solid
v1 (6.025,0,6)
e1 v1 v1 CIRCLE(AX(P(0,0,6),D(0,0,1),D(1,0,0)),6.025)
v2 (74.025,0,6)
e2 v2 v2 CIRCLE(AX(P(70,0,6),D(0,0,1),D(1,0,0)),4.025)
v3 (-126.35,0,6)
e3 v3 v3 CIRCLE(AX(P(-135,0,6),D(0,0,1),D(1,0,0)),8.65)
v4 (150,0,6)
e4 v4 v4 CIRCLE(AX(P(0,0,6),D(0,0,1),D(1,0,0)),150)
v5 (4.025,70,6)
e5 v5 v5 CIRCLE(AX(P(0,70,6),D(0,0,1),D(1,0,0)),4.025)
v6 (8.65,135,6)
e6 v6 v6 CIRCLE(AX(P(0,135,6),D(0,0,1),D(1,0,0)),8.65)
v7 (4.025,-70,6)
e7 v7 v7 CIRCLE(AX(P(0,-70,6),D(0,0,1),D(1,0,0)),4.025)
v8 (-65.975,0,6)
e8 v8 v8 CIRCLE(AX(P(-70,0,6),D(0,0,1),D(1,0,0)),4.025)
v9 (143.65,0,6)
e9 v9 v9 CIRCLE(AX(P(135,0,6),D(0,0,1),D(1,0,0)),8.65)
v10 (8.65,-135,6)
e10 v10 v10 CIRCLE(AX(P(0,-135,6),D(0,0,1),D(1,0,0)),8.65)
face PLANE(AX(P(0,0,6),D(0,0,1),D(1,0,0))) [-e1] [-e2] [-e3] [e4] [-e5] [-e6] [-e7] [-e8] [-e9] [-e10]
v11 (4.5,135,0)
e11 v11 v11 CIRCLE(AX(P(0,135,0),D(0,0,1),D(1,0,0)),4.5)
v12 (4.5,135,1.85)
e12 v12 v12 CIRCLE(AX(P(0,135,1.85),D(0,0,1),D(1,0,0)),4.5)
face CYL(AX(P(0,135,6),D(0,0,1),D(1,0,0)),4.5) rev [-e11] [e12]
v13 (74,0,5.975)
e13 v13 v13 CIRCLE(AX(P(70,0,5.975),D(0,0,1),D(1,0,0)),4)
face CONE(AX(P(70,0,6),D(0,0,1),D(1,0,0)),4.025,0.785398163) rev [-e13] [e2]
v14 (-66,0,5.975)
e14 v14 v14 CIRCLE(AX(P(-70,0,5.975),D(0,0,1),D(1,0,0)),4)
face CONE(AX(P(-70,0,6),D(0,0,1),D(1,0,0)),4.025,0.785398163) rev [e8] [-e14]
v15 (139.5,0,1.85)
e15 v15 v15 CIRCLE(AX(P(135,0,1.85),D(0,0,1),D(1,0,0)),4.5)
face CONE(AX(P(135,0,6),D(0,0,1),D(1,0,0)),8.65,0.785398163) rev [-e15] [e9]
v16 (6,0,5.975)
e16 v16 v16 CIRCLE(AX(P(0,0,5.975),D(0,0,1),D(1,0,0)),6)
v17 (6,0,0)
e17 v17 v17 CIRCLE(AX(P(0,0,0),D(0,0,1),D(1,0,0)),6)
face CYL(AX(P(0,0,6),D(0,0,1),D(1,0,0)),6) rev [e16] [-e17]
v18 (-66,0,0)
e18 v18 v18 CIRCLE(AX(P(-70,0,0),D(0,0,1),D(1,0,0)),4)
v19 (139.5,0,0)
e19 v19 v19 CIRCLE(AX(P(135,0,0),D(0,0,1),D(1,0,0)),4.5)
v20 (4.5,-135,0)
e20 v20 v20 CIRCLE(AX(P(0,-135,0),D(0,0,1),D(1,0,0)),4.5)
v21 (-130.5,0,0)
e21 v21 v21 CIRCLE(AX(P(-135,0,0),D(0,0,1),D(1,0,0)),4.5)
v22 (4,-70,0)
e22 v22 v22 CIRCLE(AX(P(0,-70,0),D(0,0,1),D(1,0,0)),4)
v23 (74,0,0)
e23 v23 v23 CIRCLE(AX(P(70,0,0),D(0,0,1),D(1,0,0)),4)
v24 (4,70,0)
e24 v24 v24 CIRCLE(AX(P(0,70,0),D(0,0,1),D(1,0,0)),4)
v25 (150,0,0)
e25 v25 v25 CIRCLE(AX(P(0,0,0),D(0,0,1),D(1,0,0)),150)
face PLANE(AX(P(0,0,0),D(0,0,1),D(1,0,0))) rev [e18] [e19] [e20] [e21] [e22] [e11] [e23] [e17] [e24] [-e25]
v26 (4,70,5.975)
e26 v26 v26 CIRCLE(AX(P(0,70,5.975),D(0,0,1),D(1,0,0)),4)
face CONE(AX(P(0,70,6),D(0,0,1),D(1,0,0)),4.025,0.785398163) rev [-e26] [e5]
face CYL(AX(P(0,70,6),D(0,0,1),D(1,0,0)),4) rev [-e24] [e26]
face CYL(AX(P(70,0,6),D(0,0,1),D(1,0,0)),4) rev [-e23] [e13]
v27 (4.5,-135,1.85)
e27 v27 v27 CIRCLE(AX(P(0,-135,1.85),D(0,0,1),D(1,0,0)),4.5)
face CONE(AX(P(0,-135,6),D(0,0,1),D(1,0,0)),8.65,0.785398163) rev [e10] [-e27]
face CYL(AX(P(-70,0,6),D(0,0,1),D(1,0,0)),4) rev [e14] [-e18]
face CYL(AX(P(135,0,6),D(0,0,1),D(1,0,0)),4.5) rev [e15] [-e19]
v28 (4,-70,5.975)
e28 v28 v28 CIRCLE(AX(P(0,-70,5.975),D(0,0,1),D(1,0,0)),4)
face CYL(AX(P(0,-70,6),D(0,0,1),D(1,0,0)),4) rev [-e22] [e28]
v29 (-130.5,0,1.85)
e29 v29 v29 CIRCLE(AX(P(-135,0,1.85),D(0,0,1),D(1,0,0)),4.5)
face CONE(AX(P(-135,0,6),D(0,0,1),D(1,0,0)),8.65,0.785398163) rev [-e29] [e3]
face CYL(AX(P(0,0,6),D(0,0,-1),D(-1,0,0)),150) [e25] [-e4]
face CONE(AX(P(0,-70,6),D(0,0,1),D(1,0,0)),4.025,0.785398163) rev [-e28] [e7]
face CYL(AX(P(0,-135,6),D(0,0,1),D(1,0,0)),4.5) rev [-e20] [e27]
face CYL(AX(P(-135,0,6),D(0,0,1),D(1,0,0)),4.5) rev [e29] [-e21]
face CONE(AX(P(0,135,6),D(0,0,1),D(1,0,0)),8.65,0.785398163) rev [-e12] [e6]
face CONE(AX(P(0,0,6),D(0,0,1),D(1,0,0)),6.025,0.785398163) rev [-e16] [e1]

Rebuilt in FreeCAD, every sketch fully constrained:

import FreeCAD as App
import Part
import Sketcher
Q = App.Units.Quantity


def add_polygon(sketch, points):
    """Adds a closed chain of lines whose ends are joined by coincident constraints."""
    first, n = sketch.GeometryCount, len(points)
    for a, b in zip(points, points[1:] + points[:1]):
        sketch.addGeometry(Part.LineSegment(App.Vector(*a, 0), App.Vector(*b, 0)), False)
    for i in range(n):
        sketch.addConstraint(Sketcher.Constraint("Coincident", first + i, 2, first + (i + 1) % n, 1))

doc = App.newDocument("Part")
body = doc.addObject("PartDesign::Body", "Body")

# Sketch on XY plane
sketch1 = body.newObject("Sketcher::SketchObject", "Sketch")
sketch1.AttachmentSupport = (doc.getObject("XY_Plane"), [""])
sketch1.MapMode = "FlatFace"
sketch1.addGeometry(Part.Circle(App.Vector(0, 0, 0), App.Vector(0, 0, 1), 150), False)
sketch1.addConstraint(Sketcher.Constraint("Coincident", 0, 3, -1, 1))
sketch1.addConstraint(Sketcher.Constraint("Diameter", 0, Q("300 mm")))
pad1 = body.newObject("PartDesign::Pad", "Pad")
pad1.Profile = sketch1
pad1.Length = 6

# Sketch on XY plane
sketch2 = body.newObject("Sketcher::SketchObject", "Sketch001")
sketch2.AttachmentSupport = (doc.getObject("XY_Plane"), [""])
sketch2.MapMode = "FlatFace"
sketch2.AttachmentOffset = App.Placement(App.Vector(0, 0, 6), App.Rotation())
sketch2.addGeometry(Part.Circle(App.Vector(0, 70, 0), App.Vector(0, 0, 1), 4), False)
sketch2.addGeometry(Part.Circle(App.Vector(0, -70, 0), App.Vector(0, 0, 1), 4), False)
sketch2.addGeometry(Part.Circle(App.Vector(-70, 0, 0), App.Vector(0, 0, 1), 4), False)
sketch2.addGeometry(Part.Circle(App.Vector(70, 0, 0), App.Vector(0, 0, 1), 4), False)
sketch2.addConstraint(Sketcher.Constraint("Equal", 0, 1))
sketch2.addConstraint(Sketcher.Constraint("Equal", 1, 2))
sketch2.addConstraint(Sketcher.Constraint("Equal", 2, 3))
sketch2.addConstraint(Sketcher.Constraint("Symmetric", 0, 3, 1, 3, -1, 1))
sketch2.addConstraint(Sketcher.Constraint("Symmetric", 2, 3, 3, 3, -1, 1))
sketch2.addConstraint(Sketcher.Constraint("PointOnObject", 0, 3, -2))
sketch2.addConstraint(Sketcher.Constraint("PointOnObject", 2, 3, -1))
sketch2.addConstraint(Sketcher.Constraint("Diameter", 0, Q("8 mm")))
sketch2.addConstraint(Sketcher.Constraint("DistanceY", -1, 1, 0, 3, Q("70 mm")))
sketch2.addConstraint(Sketcher.Constraint("DistanceX", 2, 3, -1, 1, Q("70 mm")))
doc.recompute()
hole = body.newObject("PartDesign::Hole", "Hole")
hole.Profile = sketch2
hole.ThreadType = "None"
hole.Diameter = 8
hole.DepthType = "ThroughAll"
hole.HoleCutType = "Countersink"
hole.HoleCutDiameter = 8.05
hole.HoleCutCountersinkAngle = 90

# Sketch on YZ plane
sketch3 = body.newObject("Sketcher::SketchObject", "Sketch002")
sketch3.AttachmentSupport = (doc.getObject("YZ_Plane"), [""])
sketch3.MapMode = "FlatFace"
add_polygon(sketch3, [(0, 0), (0, 6), (-6.025, 6), (-6, 5.975), (-6, 0)])  # lines 0-4
sketch3.addConstraint(Sketcher.Constraint("Vertical", 0))
sketch3.addConstraint(Sketcher.Constraint("Horizontal", 1))
sketch3.addConstraint(Sketcher.Constraint("Vertical", 3))
sketch3.addConstraint(Sketcher.Constraint("Horizontal", 4))
sketch3.addConstraint(Sketcher.Constraint("Coincident", 4, 2, -1, 1))
sketch3.addConstraint(Sketcher.Constraint("Equal", 4, 0))
sketch3.addConstraint(Sketcher.Constraint("DistanceX", 4, 1, 4, 2, Q("6 mm")))
sketch3.addConstraint(Sketcher.Constraint("Angle", 2, Q("-45 deg")))
sketch3.addConstraint(Sketcher.Constraint("DistanceX", 1, 2, 1, 1, Q("6.025 mm")))
groove = body.newObject("PartDesign::Groove", "Groove")
groove.Profile = sketch3
groove.ReferenceAxis = (sketch3, ["V_Axis"])
groove.Angle = 360

# Sketch on YZ plane
sketch4 = body.newObject("Sketcher::SketchObject", "Sketch003")
sketch4.AttachmentSupport = (doc.getObject("YZ_Plane"), [""])
sketch4.MapMode = "FlatFace"
add_polygon(sketch4, [(135, 0), (135, 6), (126.35, 6), (130.5, 1.85), (130.5, 0)])  # lines 0-4
sketch4.addGeometry(Part.LineSegment(App.Vector(135, 6, 0), App.Vector(135, 0, 0)), True)  # axis
sketch4.addConstraint(Sketcher.Constraint("Vertical", 0))
sketch4.addConstraint(Sketcher.Constraint("Horizontal", 1))
sketch4.addConstraint(Sketcher.Constraint("Vertical", 3))
sketch4.addConstraint(Sketcher.Constraint("Horizontal", 4))
sketch4.addConstraint(Sketcher.Constraint("Vertical", 5))
sketch4.addConstraint(Sketcher.Constraint("Coincident", 5, 1, 0, 2))
sketch4.addConstraint(Sketcher.Constraint("PointOnObject", 3, 2, -1))
sketch4.addConstraint(Sketcher.Constraint("PointOnObject", 5, 2, -1))
sketch4.addConstraint(Sketcher.Constraint("DistanceY", 0, 1, 0, 2, Q("6 mm")))
sketch4.addConstraint(Sketcher.Constraint("Angle", 2, Q("-45 deg")))
sketch4.addConstraint(Sketcher.Constraint("DistanceX", 4, 1, 4, 2, Q("4.5 mm")))
sketch4.addConstraint(Sketcher.Constraint("DistanceX", -1, 1, 0, 2, Q("135 mm")))
sketch4.addConstraint(Sketcher.Constraint("DistanceX", 1, 2, 1, 1, Q("8.65 mm")))
groove2 = body.newObject("PartDesign::Groove", "Groove001")
groove2.Profile = sketch4
groove2.ReferenceAxis = (sketch4, ["Axis0"])
groove2.Angle = 360
doc.recompute()

datumline = body.newObject("PartDesign::Line", "DatumLine")
datumline.Placement = App.Placement(App.Vector(0, 0, 0), App.Rotation(App.Vector(0, 0, 1), App.Vector(0.707106781, -0.707106781, 0)))
linearpattern = body.newObject("PartDesign::LinearPattern", "LinearPattern")
linearpattern.Originals = [groove2]
linearpattern.Direction = (datumline, [""])
linearpattern.Mode = "offset"
linearpattern.Offset = 190.918831
linearpattern.Occurrences = 2
body.Tip = linearpattern
doc.recompute()

linearpattern2 = body.newObject("PartDesign::LinearPattern", "LinearPattern001")
linearpattern2.Originals = [groove2]
linearpattern2.Direction = (doc.getObject("Y_Axis"), [""])
linearpattern2.Mode = "offset"
linearpattern2.Offset = 270
linearpattern2.Occurrences = 2
linearpattern2.Reversed = True
body.Tip = linearpattern2
doc.recompute()

datumline2 = body.newObject("PartDesign::Line", "DatumLine001")
datumline2.Placement = App.Placement(App.Vector(0, 0, 0), App.Rotation(App.Vector(0, 0, 1), App.Vector(-0.707106781, -0.707106781, 0)))
linearpattern3 = body.newObject("PartDesign::LinearPattern", "LinearPattern002")
linearpattern3.Originals = [groove2]
linearpattern3.Direction = (datumline2, [""])
linearpattern3.Mode = "offset"
linearpattern3.Offset = 190.918831
linearpattern3.Occurrences = 2
body.Tip = linearpattern3

doc.recompute()
